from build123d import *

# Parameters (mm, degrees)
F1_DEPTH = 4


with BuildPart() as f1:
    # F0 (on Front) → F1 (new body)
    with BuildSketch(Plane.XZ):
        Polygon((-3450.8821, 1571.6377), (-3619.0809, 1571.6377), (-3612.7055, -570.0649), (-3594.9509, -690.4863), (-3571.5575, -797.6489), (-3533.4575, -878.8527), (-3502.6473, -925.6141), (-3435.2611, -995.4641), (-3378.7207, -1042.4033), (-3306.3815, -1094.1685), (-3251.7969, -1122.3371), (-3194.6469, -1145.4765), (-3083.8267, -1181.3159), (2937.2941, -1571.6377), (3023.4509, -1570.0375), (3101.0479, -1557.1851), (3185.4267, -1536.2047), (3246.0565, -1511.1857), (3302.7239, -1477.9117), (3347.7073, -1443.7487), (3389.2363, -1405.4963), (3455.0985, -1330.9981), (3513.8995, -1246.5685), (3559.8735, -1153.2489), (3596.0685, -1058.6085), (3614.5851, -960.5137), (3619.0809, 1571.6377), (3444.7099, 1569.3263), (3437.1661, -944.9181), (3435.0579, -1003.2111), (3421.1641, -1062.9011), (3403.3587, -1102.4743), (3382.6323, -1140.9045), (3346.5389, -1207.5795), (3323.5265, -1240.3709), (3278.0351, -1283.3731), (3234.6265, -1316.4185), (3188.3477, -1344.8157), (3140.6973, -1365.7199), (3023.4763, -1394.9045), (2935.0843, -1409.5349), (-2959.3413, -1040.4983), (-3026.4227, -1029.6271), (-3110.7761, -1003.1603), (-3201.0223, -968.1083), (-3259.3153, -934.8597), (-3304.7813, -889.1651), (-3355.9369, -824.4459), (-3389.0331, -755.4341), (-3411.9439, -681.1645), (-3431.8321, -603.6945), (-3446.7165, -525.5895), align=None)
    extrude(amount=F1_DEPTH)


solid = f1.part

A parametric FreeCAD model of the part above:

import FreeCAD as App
import Part
import Sketcher

V = App.Vector

doc = App.newDocument("Part")
params = doc.addObject("Spreadsheet::Sheet", "Params")
for row, (alias, value) in enumerate([
    ("pad1_length", "4 mm"),
], start=1):
    params.set(f"A{row}", alias)
    params.set(f"B{row}", "=" + value)
    params.setAlias(f"B{row}", alias)

body = doc.addObject("PartDesign::Body", "Body")

# Sketch on XZ plane
sketch1 = body.newObject("Sketcher::SketchObject", "Sketch")
sketch1.AttachmentSupport = (doc.getObject("XZ_Plane"), [""])
sketch1.MapMode = "FlatFace"
sketch1.addGeometry([
    Part.LineSegment(V(-3451, 1572, 0), V(-3619, 1572, 0)),  # 0
    Part.LineSegment(V(-3619, 1572, 0), V(-3613, -570, 0)),  # 1
    Part.LineSegment(V(-3613, -570, 0), V(-3595, -690, 0)),  # 2
    Part.LineSegment(V(-3595, -690, 0), V(-3572, -798, 0)),  # 3
    Part.LineSegment(V(-3572, -798, 0), V(-3533, -879, 0)),  # 4
    Part.LineSegment(V(-3533, -879, 0), V(-3503, -926, 0)),  # 5
    Part.LineSegment(V(-3503, -926, 0), V(-3435, -995, 0)),  # 6
    Part.LineSegment(V(-3435, -995, 0), V(-3379, -1042, 0)),  # 7
    Part.LineSegment(V(-3379, -1042, 0), V(-3306, -1094, 0)),  # 8
    Part.LineSegment(V(-3306, -1094, 0), V(-3252, -1122, 0)),  # 9
    Part.LineSegment(V(-3252, -1122, 0), V(-3195, -1145, 0)),  # 10
    Part.LineSegment(V(-3195, -1145, 0), V(-3084, -1181, 0)),  # 11
    Part.LineSegment(V(-3084, -1181, 0), V(2937, -1572, 0)),  # 12
    Part.LineSegment(V(2937, -1572, 0), V(3023, -1570, 0)),  # 13
    Part.LineSegment(V(3023, -1570, 0), V(3101, -1557, 0)),  # 14
    Part.LineSegment(V(3101, -1557, 0), V(3185, -1536, 0)),  # 15
    Part.LineSegment(V(3185, -1536, 0), V(3246, -1511, 0)),  # 16
    Part.LineSegment(V(3246, -1511, 0), V(3303, -1478, 0)),  # 17
    Part.LineSegment(V(3303, -1478, 0), V(3348, -1444, 0)),  # 18
    Part.LineSegment(V(3348, -1444, 0), V(3389, -1405, 0)),  # 19
    Part.LineSegment(V(3389, -1405, 0), V(3455, -1331, 0)),  # 20
    Part.LineSegment(V(3455, -1331, 0), V(3514, -1247, 0)),  # 21
    Part.LineSegment(V(3514, -1247, 0), V(3560, -1153, 0)),  # 22
    Part.LineSegment(V(3560, -1153, 0), V(3596, -1059, 0)),  # 23
    Part.LineSegment(V(3596, -1059, 0), V(3615, -961, 0)),  # 24
    Part.LineSegment(V(3615, -961, 0), V(3619, 1572, 0)),  # 25
    Part.LineSegment(V(3619, 1572, 0), V(3445, 1569, 0)),  # 26
    Part.LineSegment(V(3445, 1569, 0), V(3437, -945, 0)),  # 27
    Part.LineSegment(V(3437, -945, 0), V(3435, -1003, 0)),  # 28
    Part.LineSegment(V(3435, -1003, 0), V(3421, -1063, 0)),  # 29
    Part.LineSegment(V(3421, -1063, 0), V(3403, -1102, 0)),  # 30
    Part.LineSegment(V(3403, -1102, 0), V(3383, -1141, 0)),  # 31
    Part.LineSegment(V(3383, -1141, 0), V(3347, -1208, 0)),  # 32
    Part.LineSegment(V(3347, -1208, 0), V(3324, -1240, 0)),  # 33
    Part.LineSegment(V(3324, -1240, 0), V(3278, -1283, 0)),  # 34
    Part.LineSegment(V(3278, -1283, 0), V(3235, -1316, 0)),  # 35
    Part.LineSegment(V(3235, -1316, 0), V(3188, -1345, 0)),  # 36
    Part.LineSegment(V(3188, -1345, 0), V(3141, -1366, 0)),  # 37
    Part.LineSegment(V(3141, -1366, 0), V(3023, -1395, 0)),  # 38
    Part.LineSegment(V(3023, -1395, 0), V(2935, -1410, 0)),  # 39
    Part.LineSegment(V(2935, -1410, 0), V(-2959, -1040, 0)),  # 40
    Part.LineSegment(V(-2959, -1040, 0), V(-3026, -1030, 0)),  # 41
    Part.LineSegment(V(-3026, -1030, 0), V(-3111, -1003, 0)),  # 42
    Part.LineSegment(V(-3111, -1003, 0), V(-3201, -968, 0)),  # 43
    Part.LineSegment(V(-3201, -968, 0), V(-3259, -935, 0)),  # 44
    Part.LineSegment(V(-3259, -935, 0), V(-3305, -889, 0)),  # 45
    Part.LineSegment(V(-3305, -889, 0), V(-3356, -824, 0)),  # 46
    Part.LineSegment(V(-3356, -824, 0), V(-3389, -755, 0)),  # 47
    Part.LineSegment(V(-3389, -755, 0), V(-3412, -681, 0)),  # 48
    Part.LineSegment(V(-3412, -681, 0), V(-3432, -604, 0)),  # 49
    Part.LineSegment(V(-3432, -604, 0), V(-3447, -526, 0)),  # 50
    Part.LineSegment(V(-3447, -526, 0), V(-3451, 1572, 0)),  # 51
], False)
sketch1.addConstraint([
    Sketcher.Constraint("Coincident", 0, 2, 1, 1),
    Sketcher.Constraint("Coincident", 1, 2, 2, 1),
    Sketcher.Constraint("Coincident", 2, 2, 3, 1),
    Sketcher.Constraint("Coincident", 3, 2, 4, 1),
    Sketcher.Constraint("Coincident", 4, 2, 5, 1),
    Sketcher.Constraint("Coincident", 5, 2, 6, 1),
    Sketcher.Constraint("Coincident", 6, 2, 7, 1),
    Sketcher.Constraint("Coincident", 7, 2, 8, 1),
    Sketcher.Constraint("Coincident", 8, 2, 9, 1),
    Sketcher.Constraint("Coincident", 9, 2, 10, 1),
    Sketcher.Constraint("Coincident", 10, 2, 11, 1),
    Sketcher.Constraint("Coincident", 11, 2, 12, 1),
    Sketcher.Constraint("Coincident", 12, 2, 13, 1),
    Sketcher.Constraint("Coincident", 13, 2, 14, 1),
    Sketcher.Constraint("Coincident", 14, 2, 15, 1),
    Sketcher.Constraint("Coincident", 15, 2, 16, 1),
    Sketcher.Constraint("Coincident", 16, 2, 17, 1),
    Sketcher.Constraint("Coincident", 17, 2, 18, 1),
    Sketcher.Constraint("Coincident", 18, 2, 19, 1),
    Sketcher.Constraint("Coincident", 19, 2, 20, 1),
    Sketcher.Constraint("Coincident", 20, 2, 21, 1),
    Sketcher.Constraint("Coincident", 21, 2, 22, 1),
    Sketcher.Constraint("Coincident", 22, 2, 23, 1),
    Sketcher.Constraint("Coincident", 23, 2, 24, 1),
    Sketcher.Constraint("Coincident", 24, 2, 25, 1),
    Sketcher.Constraint("Coincident", 25, 2, 26, 1),
    Sketcher.Constraint("Coincident", 26, 2, 27, 1),
    Sketcher.Constraint("Coincident", 27, 2, 28, 1),
    Sketcher.Constraint("Coincident", 28, 2, 29, 1),
    Sketcher.Constraint("Coincident", 29, 2, 30, 1),
    Sketcher.Constraint("Coincident", 30, 2, 31, 1),
    Sketcher.Constraint("Coincident", 31, 2, 32, 1),
    Sketcher.Constraint("Coincident", 32, 2, 33, 1),
    Sketcher.Constraint("Coincident", 33, 2, 34, 1),
    Sketcher.Constraint("Coincident", 34, 2, 35, 1),
    Sketcher.Constraint("Coincident", 35, 2, 36, 1),
    Sketcher.Constraint("Coincident", 36, 2, 37, 1),
    Sketcher.Constraint("Coincident", 37, 2, 38, 1),
    Sketcher.Constraint("Coincident", 38, 2, 39, 1),
    Sketcher.Constraint("Coincident", 39, 2, 40, 1),
    Sketcher.Constraint("Coincident", 40, 2, 41, 1),
    Sketcher.Constraint("Coincident", 41, 2, 42, 1),
    Sketcher.Constraint("Coincident", 42, 2, 43, 1),
    Sketcher.Constraint("Coincident", 43, 2, 44, 1),
    Sketcher.Constraint("Coincident", 44, 2, 45, 1),
    Sketcher.Constraint("Coincident", 45, 2, 46, 1),
    Sketcher.Constraint("Coincident", 46, 2, 47, 1),
    Sketcher.Constraint("Coincident", 47, 2, 48, 1),
    Sketcher.Constraint("Coincident", 48, 2, 49, 1),
    Sketcher.Constraint("Coincident", 49, 2, 50, 1),
    Sketcher.Constraint("Coincident", 50, 2, 51, 1),
    Sketcher.Constraint("Coincident", 51, 2, 0, 1),
    Sketcher.Constraint("Horizontal", 0),
    Sketcher.Constraint("Symmetric", 0, 2, 25, 2, -2),
    Sketcher.Constraint("DistanceX", 3, 2, 4, 2, 38.1),
    Sketcher.Constraint("DistanceX", 35, 2, 33, 2, 88.9),
    Sketcher.Constraint("DistanceX", 0, 2, 2, 2, 24.13),
    Sketcher.Constraint("DistanceY", 6, 2, 5, 2, 69.85),
    Sketcher.Constraint("DistanceX", 9, 2, 10, 2, 57.15),
    Sketcher.Constraint("DistanceY", 21, 2, 23, 2, 187.96),
    Sketcher.Constraint("DistanceX", 20, 2, 23, 2, 140.97),
    Sketcher.Constraint("DistanceY", 24, 2, 26, 2, 2529.84),
    Sketcher.Constraint("DistanceY", 20, 2, 27, 2, 386.08),
    Sketcher.Constraint("DistanceY", 29, 2, 28, 2, 59.69),
    Sketcher.Constraint("DistanceY", 16, 2, 36, 2, 166.37),
    Sketcher.Constraint("DistanceY", 9, 2, 41, 2, 92.71),
    Sketcher.Constraint("DistanceY", 5, 2, 47, 2, 170.18),
    Sketcher.Constraint("DistanceY", 48, 2, 49, 2, 77.47),
    Sketcher.Constraint("DistanceX", 51, 2, 49, 2, 19.05),
    Sketcher.Constraint("DistanceX", 0, 2, 0, 1, 168.1988),
    Sketcher.Constraint("DistanceY", 2, 2, 0, 2, 2262.124),
    Sketcher.Constraint("DistanceX", 1, 2, 3, 2, 41.148),
    Sketcher.Constraint("DistanceY", 3, 2, 1, 2, 227.584),
    Sketcher.Constraint("DistanceY", 7, 2, 2, 2, 351.917),
    Sketcher.Constraint("DistanceX", 4, 2, 8, 2, 227.076),
    Sketcher.Constraint("DistanceY", 9, 2, 6, 2, 126.873),
    Sketcher.Constraint("DistanceY", 10, 2, 8, 2, 51.308),
    Sketcher.Constraint("DistanceX", 7, 2, 11, 2, 294.894),
    Sketcher.Constraint("DistanceX", 10, 2, 12, 2, 6131.941),
    Sketcher.Constraint("DistanceY", 13, 2, 10, 2, 424.561),
    Sketcher.Constraint("DistanceX", 13, 2, 14, 2, 77.597),
    Sketcher.Constraint("DistanceY", 14, 2, 9, 2, 434.848),
    Sketcher.Constraint("DistanceY", 12, 2, 15, 2, 35.433),
    Sketcher.Constraint("DistanceY", 15, 2, 16, 2, 25.019),
    Sketcher.Constraint("DistanceY", 16, 2, 17, 2, 33.274),
    Sketcher.Constraint("DistanceX", 14, 2, 17, 2, 201.676),
    Sketcher.Constraint("DistanceY", 17, 2, 18, 2, 34.163),
    Sketcher.Constraint("DistanceX", 18, 2, 19, 2, 41.529),
    Sketcher.Constraint("DistanceX", 16, 2, 20, 2, 209.042),
    Sketcher.Constraint("DistanceX", 20, 2, 21, 2, 58.801),
    Sketcher.Constraint("DistanceX", 21, 2, 22, 2, 45.974),
    Sketcher.Constraint("DistanceX", 26, 2, 25, 2, 174.371),
    Sketcher.Constraint("DistanceX", 27, 2, 24, 2, 177.419),
    Sketcher.Constraint("DistanceY", 28, 2, 27, 2, 58.293),
    Sketcher.Constraint("DistanceX", 29, 2, 27, 2, 16.002),
    Sketcher.Constraint("DistanceY", 21, 2, 31, 2, 105.664),
    Sketcher.Constraint("DistanceY", 32, 2, 31, 2, 66.675),
    Sketcher.Constraint("DistanceX", 33, 2, 20, 2, 131.572),
    Sketcher.Constraint("DistanceY", 35, 2, 32, 2, 108.839),
    Sketcher.Constraint("DistanceX", 38, 2, 37, 2, 117.221),
    Sketcher.Constraint("DistanceY", 13, 2, 38, 2, 175.133),
    Sketcher.Constraint("DistanceX", 39, 2, 38, 2, 88.392),
    Sketcher.Constraint("DistanceY", 39, 2, 37, 2, 43.815),
    Sketcher.Constraint("DistanceY", 7, 2, 40, 2, 1.905),
    Sketcher.Constraint("DistanceX", 11, 2, 41, 2, 57.404),
    Sketcher.Constraint("DistanceY", 40, 2, 42, 2, 37.338),
    Sketcher.Constraint("DistanceY", 42, 2, 43, 2, 35.052),
    Sketcher.Constraint("DistanceX", 44, 2, 43, 2, 58.293),
    Sketcher.Constraint("DistanceX", 45, 2, 44, 2, 45.466),
    Sketcher.Constraint("DistanceY", 6, 2, 45, 2, 106.299),
    Sketcher.Constraint("DistanceX", 5, 2, 45, 2, 197.866),
    Sketcher.Constraint("DistanceX", 48, 2, 46, 2, 56.007),
    Sketcher.Constraint("DistanceX", 2, 2, 48, 2, 183.007),
    Sketcher.Constraint("DistanceX", 49, 2, 47, 2, 42.799),
    Sketcher.Constraint("DistanceY", 49, 2, 50, 2, 78.105),
    Sketcher.Constraint("DistanceX", 1, 2, 50, 2, 165.989),
    Sketcher.Constraint("DistanceX", 0, 2, -1, 1, 3619.0809),
    Sketcher.Constraint("DistanceY", -1, 1, 0, 2, 1571.6377),
    Sketcher.Constraint("DistanceX", 1, 2, -1, 1, 3612.7055),
    Sketcher.Constraint("DistanceY", 1, 2, -1, 1, 570.0649),
    Sketcher.Constraint("DistanceY", 4, 2, -1, 1, 878.8527),
    Sketcher.Constraint("DistanceX", 5, 2, -1, 1, 3502.6473),
    Sketcher.Constraint("DistanceY", 5, 2, -1, 1, 925.6141),
    Sketcher.Constraint("DistanceX", 6, 2, -1, 1, 3435.2611),
    Sketcher.Constraint("DistanceX", 7, 2, -1, 1, 3378.7207),
    Sketcher.Constraint("DistanceY", 8, 2, -1, 1, 1094.1685),
    Sketcher.Constraint("DistanceX", 9, 2, -1, 1, 3251.7969),
    Sketcher.Constraint("DistanceY", 11, 2, -1, 1, 1181.3159),
    Sketcher.Constraint("DistanceY", 12, 2, -1, 1, 1571.6377),
    Sketcher.Constraint("DistanceX", -1, 1, 13, 2, 3023.4509),
    Sketcher.Constraint("DistanceX", -1, 1, 15, 2, 3185.4267),
    Sketcher.Constraint("DistanceX", -1, 1, 16, 2, 3246.0565),
    Sketcher.Constraint("DistanceX", -1, 1, 18, 2, 3347.7073),
    Sketcher.Constraint("DistanceY", 19, 2, -1, 1, 1405.4963),
    Sketcher.Constraint("DistanceY", 20, 2, -1, 1, 1330.9981),
    Sketcher.Constraint("DistanceY", 21, 2, -1, 1, 1246.5685),
    Sketcher.Constraint("DistanceY", 22, 2, -1, 1, 1153.2489),
    Sketcher.Constraint("DistanceX", -1, 1, 24, 2, 3614.5851),
    Sketcher.Constraint("DistanceY", 24, 2, -1, 1, 960.5137),
    Sketcher.Constraint("DistanceX", -1, 1, 28, 2, 3435.0579),
    Sketcher.Constraint("DistanceX", -1, 1, 30, 2, 3403.3587),
    Sketcher.Constraint("DistanceY", 30, 2, -1, 1, 1102.4743),
    Sketcher.Constraint("DistanceX", -1, 1, 31, 2, 3382.6323),
    Sketcher.Constraint("DistanceX", -1, 1, 32, 2, 3346.5389),
    Sketcher.Constraint("DistanceY", 33, 2, -1, 1, 1240.3709),
    Sketcher.Constraint("DistanceX", -1, 1, 34, 2, 3278.0351),
    Sketcher.Constraint("DistanceY", 34, 2, -1, 1, 1283.3731),
    Sketcher.Constraint("DistanceX", -1, 1, 36, 2, 3188.3477),
    Sketcher.Constraint("DistanceX", -1, 1, 37, 2, 3140.6973),
    Sketcher.Constraint("DistanceY", 37, 2, -1, 1, 1365.7199),
    Sketcher.Constraint("DistanceX", 40, 2, -1, 1, 2959.3413),
    Sketcher.Constraint("DistanceX", 42, 2, -1, 1, 3110.7761),
    Sketcher.Constraint("DistanceY", 44, 2, -1, 1, 934.8597),
    Sketcher.Constraint("DistanceY", 46, 2, -1, 1, 824.4459),
    Sketcher.Constraint("DistanceY", 48, 2, -1, 1, 681.1645),
])
pad1 = body.newObject("PartDesign::Pad", "Pad")
pad1.Profile = sketch1
pad1.setExpression("Length", "Params.pad1_length")

doc.recompute()
